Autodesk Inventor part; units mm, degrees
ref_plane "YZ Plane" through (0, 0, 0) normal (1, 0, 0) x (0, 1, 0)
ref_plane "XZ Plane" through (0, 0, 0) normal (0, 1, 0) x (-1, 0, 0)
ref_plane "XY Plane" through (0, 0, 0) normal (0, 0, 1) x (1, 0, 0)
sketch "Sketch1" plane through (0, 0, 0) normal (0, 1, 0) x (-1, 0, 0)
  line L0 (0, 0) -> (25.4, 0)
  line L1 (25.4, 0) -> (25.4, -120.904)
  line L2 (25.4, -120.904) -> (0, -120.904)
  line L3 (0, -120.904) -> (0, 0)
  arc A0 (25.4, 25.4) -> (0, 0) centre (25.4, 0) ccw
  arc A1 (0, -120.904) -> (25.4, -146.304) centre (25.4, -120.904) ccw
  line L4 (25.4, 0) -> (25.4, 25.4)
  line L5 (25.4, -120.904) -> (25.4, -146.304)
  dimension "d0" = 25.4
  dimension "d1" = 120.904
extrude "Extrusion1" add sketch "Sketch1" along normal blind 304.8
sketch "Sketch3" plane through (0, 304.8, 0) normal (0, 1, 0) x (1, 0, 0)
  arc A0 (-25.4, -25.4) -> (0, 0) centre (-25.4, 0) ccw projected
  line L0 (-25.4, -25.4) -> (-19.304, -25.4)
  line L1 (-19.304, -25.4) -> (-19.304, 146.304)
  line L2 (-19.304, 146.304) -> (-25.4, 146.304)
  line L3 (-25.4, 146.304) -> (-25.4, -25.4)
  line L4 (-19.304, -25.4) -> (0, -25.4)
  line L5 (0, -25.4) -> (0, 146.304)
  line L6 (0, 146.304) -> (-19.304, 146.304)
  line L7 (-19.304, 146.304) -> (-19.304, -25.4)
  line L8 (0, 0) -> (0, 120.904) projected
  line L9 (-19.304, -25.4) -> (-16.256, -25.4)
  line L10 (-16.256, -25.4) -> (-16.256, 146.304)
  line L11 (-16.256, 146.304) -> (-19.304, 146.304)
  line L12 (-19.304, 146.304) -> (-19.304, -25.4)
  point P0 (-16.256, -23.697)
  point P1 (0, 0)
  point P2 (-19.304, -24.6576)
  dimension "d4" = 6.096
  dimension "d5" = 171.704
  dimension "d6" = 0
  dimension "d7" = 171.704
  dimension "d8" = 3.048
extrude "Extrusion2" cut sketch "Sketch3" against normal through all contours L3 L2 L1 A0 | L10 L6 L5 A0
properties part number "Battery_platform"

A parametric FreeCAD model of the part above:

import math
import FreeCAD as App
import Part
import Sketcher
Q = App.Units.Quantity

doc = App.newDocument("Part")
params = doc.addObject("Spreadsheet::Sheet", "Params")
for row, (alias, value) in enumerate([
    ("sketch1_radius", "1 in"),
    ("sketch1_height", "4.76 in"),
    ("pad1_length", "12 in"),
    ("sketch2_radius", "1 in"),
    ("sketch2_width", "0.24 in"),
    ("sketch2_height", "6.76 in"),
], start=1):
    params.set(f"A{row}", alias)
    params.set(f"B{row}", "=" + value)
    params.setAlias(f"B{row}", alias)

body = doc.addObject("PartDesign::Body", "Body")

sketch1 = doc.addObject("Sketcher::SketchObject", "Sketch")
body.addObject(sketch1)
sketch1.AttachmentSupport = (doc.XZ_Plane, [""])
sketch1.MapMode = "FlatFace"
sketch1.addGeometry(Part.ArcOfCircle(Part.Circle(App.Vector(-25.4, 0, 0), App.Vector(0, 0, 1), 25.4), math.radians(0), math.radians(90)), False)
sketch1.addGeometry(Part.LineSegment(App.Vector(0, 0, 0), App.Vector(0, -120.904, 0)), False)
sketch1.addGeometry(Part.ArcOfCircle(Part.Circle(App.Vector(-25.4, -120.904, 0), App.Vector(0, 0, 1), 25.4), math.radians(-90), math.radians(0)), False)
sketch1.addGeometry(Part.LineSegment(App.Vector(-25.4, -146.304, 0), App.Vector(-25.4, 25.4, 0)), False)
sketch1.addConstraint(Sketcher.Constraint("Tangent", 0, 1, 1, 1))
sketch1.addConstraint(Sketcher.Constraint("Tangent", 1, 2, 2, 2))
sketch1.addConstraint(Sketcher.Constraint("Coincident", 2, 1, 3, 1))
sketch1.addConstraint(Sketcher.Constraint("Coincident", 3, 2, 0, 2))
sketch1.addConstraint(Sketcher.Constraint("Vertical", 1))
sketch1.addConstraint(Sketcher.Constraint("Vertical", 3))
sketch1.addConstraint(Sketcher.Constraint("Coincident", 0, 1, -1, 1))
sketch1.addConstraint(Sketcher.Constraint("Equal", 0, 2))
sketch1.addConstraint(Sketcher.Constraint("Vertical", 0, 3, 2, 1))
sketch1.addConstraint(Sketcher.Constraint("Radius", 0, Q("1 in")))
sketch1.addConstraint(Sketcher.Constraint("DistanceY", 1, 2, 1, 1, Q("4.76 in")))
sketch1.setExpression("Constraints[9]", "Params.sketch1_radius")
sketch1.setExpression("Constraints[10]", "Params.sketch1_height")
pad1 = doc.addObject("PartDesign::Pad", "Pad")
body.addObject(pad1)
pad1.Profile = sketch1
pad1.setExpression("Length", "Params.pad1_length")
pad1.Reversed = True

sketch2 = doc.addObject("Sketcher::SketchObject", "Sketch001")
body.addObject(sketch2)
sketch2.AttachmentSupport = (doc.XZ_Plane, [""])
sketch2.MapMode = "FlatFace"
sketch2.AttachmentOffset = App.Placement(App.Vector(0, 0, -12 * 25.4), App.Rotation())
sketch2.addGeometry(Part.LineSegment(App.Vector(-25.4, -146.304, 0), App.Vector(-25.4, 25.4, 0)), False)
sketch2.addGeometry(Part.ArcOfCircle(Part.Circle(App.Vector(-25.4, 0, 0), App.Vector(0, 0, 1), 25.4), math.radians(76.11346), math.radians(90)), False)
sketch2.addGeometry(Part.LineSegment(App.Vector(-19.304, 24.657631, 0), App.Vector(-19.304, -146.304, 0)), False)
sketch2.addGeometry(Part.LineSegment(App.Vector(-19.304, -146.304, 0), App.Vector(-25.4, -146.304, 0)), False)
sketch2.addGeometry(Part.LineSegment(App.Vector(-16.256, -146.304, 0), App.Vector(-16.256, 23.696989, 0)), False)
sketch2.addGeometry(Part.ArcOfCircle(Part.Circle(App.Vector(-25.4, 0, 0), App.Vector(0, 0, 1), 25.4), math.radians(0), math.radians(68.899804)), False)
sketch2.addGeometry(Part.LineSegment(App.Vector(0, 0, 0), App.Vector(0, -146.304, 0)), False)
sketch2.addGeometry(Part.LineSegment(App.Vector(0, -146.304, 0), App.Vector(-16.256, -146.304, 0)), False)
sketch2.addConstraint(Sketcher.Constraint("Coincident", 0, 2, 1, 2))
sketch2.addConstraint(Sketcher.Constraint("Coincident", 1, 1, 2, 1))
sketch2.addConstraint(Sketcher.Constraint("Coincident", 2, 2, 3, 1))
sketch2.addConstraint(Sketcher.Constraint("Coincident", 3, 2, 0, 1))
sketch2.addConstraint(Sketcher.Constraint("Coincident", 4, 2, 5, 2))
sketch2.addConstraint(Sketcher.Constraint("Tangent", 5, 1, 6, 1))
sketch2.addConstraint(Sketcher.Constraint("Coincident", 6, 2, 7, 1))
sketch2.addConstraint(Sketcher.Constraint("Coincident", 7, 2, 4, 1))
sketch2.addConstraint(Sketcher.Constraint("Vertical", 0))
sketch2.addConstraint(Sketcher.Constraint("Vertical", 2))
sketch2.addConstraint(Sketcher.Constraint("Horizontal", 3))
sketch2.addConstraint(Sketcher.Constraint("Vertical", 4))
sketch2.addConstraint(Sketcher.Constraint("Vertical", 6))
sketch2.addConstraint(Sketcher.Constraint("Horizontal", 7))
sketch2.addConstraint(Sketcher.Constraint("Coincident", 5, 1, -1, 1))
sketch2.addConstraint(Sketcher.Constraint("Coincident", 5, 3, 1, 3))
sketch2.addConstraint(Sketcher.Constraint("Equal", 1, 5))
sketch2.addConstraint(Sketcher.Constraint("Horizontal", 3, 2, 6, 2))
sketch2.addConstraint(Sketcher.Constraint("Vertical", 5, 3, 0, 2))
sketch2.addConstraint(Sketcher.Constraint("Radius", 1, Q("1 in")))
sketch2.addConstraint(Sketcher.Constraint("DistanceX", 3, 2, 3, 1, Q("0.24 in")))
sketch2.addConstraint(Sketcher.Constraint("DistanceY", 0, 1, 0, 2, Q("6.76 in")))
sketch2.addConstraint(Sketcher.Constraint("DistanceX", 1, 1, 4, 2, Q("0.12 in")))
sketch2.setExpression("Constraints[19]", "Params.sketch2_radius")
sketch2.setExpression("Constraints[20]", "Params.sketch2_width")
sketch2.setExpression("Constraints[21]", "Params.sketch2_height")
pocket1 = doc.addObject("PartDesign::Pocket", "Pocket")
body.addObject(pocket1)
pocket1.Profile = sketch2
pocket1.Type = "ThroughAll"
pocket1.Reversed = True

doc.recompute()
